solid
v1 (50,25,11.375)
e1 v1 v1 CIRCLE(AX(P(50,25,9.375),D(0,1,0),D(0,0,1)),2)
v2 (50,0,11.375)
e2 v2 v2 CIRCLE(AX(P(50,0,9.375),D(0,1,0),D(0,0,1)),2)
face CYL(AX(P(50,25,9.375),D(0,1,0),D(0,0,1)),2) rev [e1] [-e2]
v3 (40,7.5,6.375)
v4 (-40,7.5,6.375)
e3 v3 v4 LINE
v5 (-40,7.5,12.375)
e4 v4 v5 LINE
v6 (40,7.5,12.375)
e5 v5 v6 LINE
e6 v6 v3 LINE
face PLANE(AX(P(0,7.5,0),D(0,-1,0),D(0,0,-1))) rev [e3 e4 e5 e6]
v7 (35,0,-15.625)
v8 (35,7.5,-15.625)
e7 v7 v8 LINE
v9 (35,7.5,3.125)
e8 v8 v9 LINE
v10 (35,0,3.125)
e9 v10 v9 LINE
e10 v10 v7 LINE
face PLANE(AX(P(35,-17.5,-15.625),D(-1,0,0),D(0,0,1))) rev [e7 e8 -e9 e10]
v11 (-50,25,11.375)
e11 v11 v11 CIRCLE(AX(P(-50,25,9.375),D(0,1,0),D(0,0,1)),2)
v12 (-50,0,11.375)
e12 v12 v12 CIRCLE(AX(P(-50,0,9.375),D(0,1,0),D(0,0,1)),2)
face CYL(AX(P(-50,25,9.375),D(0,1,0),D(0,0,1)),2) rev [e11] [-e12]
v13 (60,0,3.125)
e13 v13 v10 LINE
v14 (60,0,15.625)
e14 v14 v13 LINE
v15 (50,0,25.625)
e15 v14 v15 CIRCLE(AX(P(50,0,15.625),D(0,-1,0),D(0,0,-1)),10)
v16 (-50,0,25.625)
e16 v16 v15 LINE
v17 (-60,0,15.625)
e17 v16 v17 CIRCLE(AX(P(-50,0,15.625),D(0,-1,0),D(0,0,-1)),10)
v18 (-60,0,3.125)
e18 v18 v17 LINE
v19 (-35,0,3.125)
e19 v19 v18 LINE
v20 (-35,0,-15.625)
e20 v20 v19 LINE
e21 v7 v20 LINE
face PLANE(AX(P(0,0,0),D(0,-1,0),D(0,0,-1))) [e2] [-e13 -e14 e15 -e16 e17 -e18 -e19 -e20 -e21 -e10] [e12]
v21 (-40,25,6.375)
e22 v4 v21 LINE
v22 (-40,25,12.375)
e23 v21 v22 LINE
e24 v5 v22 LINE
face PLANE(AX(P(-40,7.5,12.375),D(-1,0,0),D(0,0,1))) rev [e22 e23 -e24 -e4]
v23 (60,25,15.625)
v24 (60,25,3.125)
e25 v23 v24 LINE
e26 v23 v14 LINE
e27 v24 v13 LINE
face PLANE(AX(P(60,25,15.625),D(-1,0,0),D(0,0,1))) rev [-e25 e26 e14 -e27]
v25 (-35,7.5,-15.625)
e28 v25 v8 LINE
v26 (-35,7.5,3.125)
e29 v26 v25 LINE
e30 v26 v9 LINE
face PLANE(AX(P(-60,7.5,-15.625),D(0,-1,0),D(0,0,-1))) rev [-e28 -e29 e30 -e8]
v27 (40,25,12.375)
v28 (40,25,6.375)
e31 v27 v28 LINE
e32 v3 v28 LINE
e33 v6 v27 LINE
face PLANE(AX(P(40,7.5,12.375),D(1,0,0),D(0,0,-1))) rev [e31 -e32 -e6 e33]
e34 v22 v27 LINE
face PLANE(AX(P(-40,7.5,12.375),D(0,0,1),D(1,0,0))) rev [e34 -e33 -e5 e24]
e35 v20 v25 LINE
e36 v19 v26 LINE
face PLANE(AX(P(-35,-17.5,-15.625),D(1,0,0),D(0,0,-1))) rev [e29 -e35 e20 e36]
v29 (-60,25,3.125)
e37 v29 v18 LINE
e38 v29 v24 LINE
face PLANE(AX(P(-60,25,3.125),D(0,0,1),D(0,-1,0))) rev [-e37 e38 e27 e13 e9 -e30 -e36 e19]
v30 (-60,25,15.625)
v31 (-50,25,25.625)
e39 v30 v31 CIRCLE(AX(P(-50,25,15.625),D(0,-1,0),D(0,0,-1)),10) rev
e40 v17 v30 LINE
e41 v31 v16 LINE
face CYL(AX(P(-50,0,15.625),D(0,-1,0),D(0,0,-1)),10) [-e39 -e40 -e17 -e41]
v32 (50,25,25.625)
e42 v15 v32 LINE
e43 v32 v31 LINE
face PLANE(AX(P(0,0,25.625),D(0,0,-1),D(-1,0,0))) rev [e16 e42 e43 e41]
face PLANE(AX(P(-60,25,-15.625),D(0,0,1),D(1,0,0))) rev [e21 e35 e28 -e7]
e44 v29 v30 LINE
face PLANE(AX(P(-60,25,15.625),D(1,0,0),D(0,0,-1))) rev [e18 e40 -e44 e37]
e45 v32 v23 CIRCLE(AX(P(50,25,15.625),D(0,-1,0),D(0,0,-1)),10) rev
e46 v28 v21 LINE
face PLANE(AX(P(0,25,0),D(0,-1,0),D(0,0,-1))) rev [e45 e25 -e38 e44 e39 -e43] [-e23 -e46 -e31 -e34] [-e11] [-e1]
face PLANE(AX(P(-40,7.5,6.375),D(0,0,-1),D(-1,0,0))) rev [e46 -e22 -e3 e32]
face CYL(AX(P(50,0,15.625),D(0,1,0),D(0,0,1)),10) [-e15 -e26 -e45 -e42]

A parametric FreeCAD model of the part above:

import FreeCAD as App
import Part
import Sketcher

V = App.Vector


def edges_at(feature, points):
    """Names of the edges that pass closest to the given points."""
    edges = feature.Shape.Edges
    near = lambda p: min(range(len(edges)), key=lambda i: edges[i].distToShape(Part.Vertex(*p))[0])
    return sorted({f"Edge{near(p) + 1}" for p in points})

doc = App.newDocument("Part")
params = doc.addObject("Spreadsheet::Sheet", "Params")
for row, (alias, value) in enumerate([
    ("sketch1_width", "120 mm"),
    ("sketch1_height", "31.25 mm"),
    ("pad1_length", "25 mm"),
    ("sketch2_width", "17.5 mm"),
    ("sketch2_height", "18.75 mm"),
    ("sketch3_diameter", "4 mm"),
    ("hole_diameter", "4 mm"),
    ("sketch4_width", "120 mm"),
    ("sketch4_height", "25 mm"),
    ("pad2_length", "10 mm"),
    ("sketch5_width", "80 mm"),
    ("sketch5_height", "6 mm"),
    ("pocket2_length", "17.5 mm"),
    ("fillet_radius", "10 mm"),
    ("sketch6_width", "25 mm"),
    ("sketch6_height", "18.75 mm"),
    ("pocket3_length", "25 mm"),
], start=1):
    params.set(f"A{row}", alias)
    params.set(f"B{row}", "=" + value)
    params.setAlias(f"B{row}", alias)

body = doc.addObject("PartDesign::Body", "Body")

sketch1 = body.newObject("Sketcher::SketchObject", "Sketch")
sketch1.AttachmentSupport = (doc.getObject("XZ_Plane"), [""])
sketch1.MapMode = "FlatFace"
sketch1.addGeometry([
    Part.LineSegment(V(-60, -16, 0), V(-60, 16, 0)),
    Part.LineSegment(V(-60, 16, 0), V(60, 16, 0)),
    Part.LineSegment(V(60, 16, 0), V(60, -16, 0)),
    Part.LineSegment(V(60, -16, 0), V(-60, -16, 0)),
], False)
sketch1.addConstraint([
    Sketcher.Constraint("Coincident", 0, 2, 1, 1),
    Sketcher.Constraint("Coincident", 1, 2, 2, 1),
    Sketcher.Constraint("Coincident", 2, 2, 3, 1),
    Sketcher.Constraint("Coincident", 3, 2, 0, 1),
    Sketcher.Constraint("Vertical", 0),
    Sketcher.Constraint("Horizontal", 1),
    Sketcher.Constraint("Vertical", 2),
    Sketcher.Constraint("Horizontal", 3),
    Sketcher.Constraint("Symmetric", 0, 2, 2, 2, -1, 1),
    Sketcher.Constraint("DistanceX", 1, 1, 1, 2, 120.0),
    Sketcher.Constraint("DistanceY", 0, 1, 0, 2, 31.25),
])
sketch1.setExpression("Constraints[9]", "Params.sketch1_width")
sketch1.setExpression("Constraints[10]", "Params.sketch1_height")
pad1 = body.newObject("PartDesign::Pad", "Pad")
pad1.Profile = sketch1
pad1.setExpression("Length", "Params.pad1_length")
pad1.Reversed = True

sketch2 = body.newObject("Sketcher::SketchObject", "Sketch001")
sketch2.AttachmentSupport = (doc.getObject("YZ_Plane"), [""])
sketch2.MapMode = "FlatFace"
sketch2.AttachmentOffset = App.Placement(V(0, 0, 60), App.Rotation())
sketch2.addGeometry([
    Part.LineSegment(V(25, 3, 0), V(8, 3, 0)),
    Part.LineSegment(V(8, 3, 0), V(8, -16, 0)),
    Part.LineSegment(V(8, -16, 0), V(25, -16, 0)),
    Part.LineSegment(V(25, -16, 0), V(25, 3, 0)),
], False)
sketch2.addConstraint([
    Sketcher.Constraint("Coincident", 0, 2, 1, 1),
    Sketcher.Constraint("Coincident", 1, 2, 2, 1),
    Sketcher.Constraint("Coincident", 2, 2, 3, 1),
    Sketcher.Constraint("Coincident", 3, 2, 0, 1),
    Sketcher.Constraint("Horizontal", 0),
    Sketcher.Constraint("Vertical", 1),
    Sketcher.Constraint("Horizontal", 2),
    Sketcher.Constraint("Vertical", 3),
    Sketcher.Constraint("DistanceX", 0, 2, 0, 1, 17.5),
    Sketcher.Constraint("DistanceX", -1, 1, 2, 2, 25.0),
    Sketcher.Constraint("DistanceY", 1, 2, 1, 1, 18.75),
    Sketcher.Constraint("DistanceY", -1, 1, 0, 2, 3.125),
])
sketch2.setExpression("Constraints[8]", "Params.sketch2_width")
sketch2.setExpression("Constraints[10]", "Params.sketch2_height")
pocket1 = body.newObject("PartDesign::Pocket", "Pocket")
pocket1.Profile = sketch2
pocket1.Type = "ThroughAll"

sketch3 = body.newObject("Sketcher::SketchObject", "Sketch002")
sketch3.AttachmentSupport = (doc.getObject("XZ_Plane"), [""])
sketch3.MapMode = "FlatFace"
sketch3.AttachmentOffset = App.Placement(V(0, 0, -25), App.Rotation())
sketch3.addGeometry([
    Part.Circle(V(50, 9.4, 0), V(0, 0, 1), 2),
    Part.Circle(V(-50, 9.4, 0), V(0, 0, 1), 2),
], False)
sketch3.addConstraint([
    Sketcher.Constraint("Equal", 0, 1),
    Sketcher.Constraint("Symmetric", 0, 3, 1, 3, -2),
    Sketcher.Constraint("Diameter", 0, 4.0),
    Sketcher.Constraint("DistanceX", -1, 1, 0, 3, 50.0),
    Sketcher.Constraint("DistanceY", -1, 1, 0, 3, 9.375),
])
sketch3.setExpression("Constraints[2]", "Params.sketch3_diameter")
doc.recompute()
hole = body.newObject("PartDesign::Hole", "Hole")
hole.Profile = sketch3
hole.ThreadType = "None"
hole.setExpression("Diameter", "Params.hole_diameter")
hole.DepthType = "ThroughAll"
hole.Reversed = True

sketch4 = body.newObject("Sketcher::SketchObject", "Sketch003")
sketch4.AttachmentSupport = (doc.getObject("XY_Plane"), [""])
sketch4.MapMode = "FlatFace"
sketch4.AttachmentOffset = App.Placement(V(0, 0, 15.625), App.Rotation())
sketch4.addGeometry([
    Part.LineSegment(V(-60, 25, 0), V(-60, 0, 0)),
    Part.LineSegment(V(-60, 0, 0), V(60, 0, 0)),
    Part.LineSegment(V(60, 0, 0), V(60, 25, 0)),
    Part.LineSegment(V(60, 25, 0), V(-60, 25, 0)),
], False)
sketch4.addConstraint([
    Sketcher.Constraint("Coincident", 0, 2, 1, 1),
    Sketcher.Constraint("Coincident", 1, 2, 2, 1),
    Sketcher.Constraint("Coincident", 2, 2, 3, 1),
    Sketcher.Constraint("Coincident", 3, 2, 0, 1),
    Sketcher.Constraint("Vertical", 0),
    Sketcher.Constraint("Horizontal", 1),
    Sketcher.Constraint("Vertical", 2),
    Sketcher.Constraint("Horizontal", 3),
    Sketcher.Constraint("Symmetric", 0, 2, 1, 2, -1, 1),
    Sketcher.Constraint("DistanceX", 1, 1, 1, 2, 120.0),
    Sketcher.Constraint("DistanceY", 0, 2, 0, 1, 25.0),
])
sketch4.setExpression("Constraints[9]", "Params.sketch4_width")
sketch4.setExpression("Constraints[10]", "Params.sketch4_height")
pad2 = body.newObject("PartDesign::Pad", "Pad001")
pad2.Profile = sketch4
pad2.setExpression("Length", "Params.pad2_length")

sketch5 = body.newObject("Sketcher::SketchObject", "Sketch004")
sketch5.AttachmentSupport = (doc.getObject("XZ_Plane"), [""])
sketch5.MapMode = "FlatFace"
sketch5.AttachmentOffset = App.Placement(V(0, 0, -25), App.Rotation())
sketch5.addGeometry([
    Part.LineSegment(V(-40, 6, 0), V(-40, 12, 0)),
    Part.LineSegment(V(-40, 12, 0), V(40, 12, 0)),
    Part.LineSegment(V(40, 12, 0), V(40, 6, 0)),
    Part.LineSegment(V(40, 6, 0), V(-40, 6, 0)),
], False)
sketch5.addConstraint([
    Sketcher.Constraint("Coincident", 0, 2, 1, 1),
    Sketcher.Constraint("Coincident", 1, 2, 2, 1),
    Sketcher.Constraint("Coincident", 2, 2, 3, 1),
    Sketcher.Constraint("Coincident", 3, 2, 0, 1),
    Sketcher.Constraint("Vertical", 0),
    Sketcher.Constraint("Horizontal", 1),
    Sketcher.Constraint("Vertical", 2),
    Sketcher.Constraint("Horizontal", 3),
    Sketcher.Constraint("DistanceX", 1, 1, 1, 2, 80.0),
    Sketcher.Constraint("DistanceY", 0, 1, 0, 2, 6.0),
    Sketcher.Constraint("DistanceX", 0, 2, -1, 1, 40.0),
    Sketcher.Constraint("DistanceY", -1, 1, 0, 2, 12.375),
])
sketch5.setExpression("Constraints[8]", "Params.sketch5_width")
sketch5.setExpression("Constraints[9]", "Params.sketch5_height")
pocket2 = body.newObject("PartDesign::Pocket", "Pocket001")
pocket2.Profile = sketch5
pocket2.setExpression("Length", "Params.pocket2_length")
pocket2.Reversed = True
doc.recompute()

fillet = body.newObject("PartDesign::Fillet", "Fillet")
fillet.Base = (pocket2, edges_at(pocket2, [(-60, 12.5, 25.625), (60, 12.5, 25.625)]))
fillet.setExpression("Radius", "Params.fillet_radius")

sketch6 = body.newObject("Sketcher::SketchObject", "Sketch005")
sketch6.AttachmentSupport = (doc.getObject("XZ_Plane"), [""])
sketch6.MapMode = "FlatFace"
sketch6.AttachmentOffset = App.Placement(V(0, 0, -7.5), App.Rotation())
sketch6.addGeometry([
    Part.LineSegment(V(-60, -16, 0), V(-60, 3, 0)),
    Part.LineSegment(V(-60, 3, 0), V(-35, 3, 0)),
    Part.LineSegment(V(-35, 3, 0), V(-35, -16, 0)),
    Part.LineSegment(V(-35, -16, 0), V(-60, -16, 0)),
    Part.LineSegment(V(35, -16, 0), V(35, 3, 0)),
    Part.LineSegment(V(35, 3, 0), V(60, 3, 0)),
    Part.LineSegment(V(60, 3, 0), V(60, -16, 0)),
    Part.LineSegment(V(60, -16, 0), V(35, -16, 0)),
], False)
sketch6.addConstraint([
    Sketcher.Constraint("Coincident", 0, 2, 1, 1),
    Sketcher.Constraint("Coincident", 1, 2, 2, 1),
    Sketcher.Constraint("Coincident", 2, 2, 3, 1),
    Sketcher.Constraint("Coincident", 3, 2, 0, 1),
    Sketcher.Constraint("Coincident", 4, 2, 5, 1),
    Sketcher.Constraint("Coincident", 5, 2, 6, 1),
    Sketcher.Constraint("Coincident", 6, 2, 7, 1),
    Sketcher.Constraint("Coincident", 7, 2, 4, 1),
    Sketcher.Constraint("Vertical", 0),
    Sketcher.Constraint("Horizontal", 1),
    Sketcher.Constraint("Vertical", 2),
    Sketcher.Constraint("Horizontal", 3),
    Sketcher.Constraint("Vertical", 4),
    Sketcher.Constraint("Horizontal", 5),
    Sketcher.Constraint("Vertical", 6),
    Sketcher.Constraint("Horizontal", 7),
    Sketcher.Constraint("Symmetric", 1, 2, 4, 2, -2),
    Sketcher.Constraint("Symmetric", 3, 2, 6, 2, -2),
    Sketcher.Constraint("DistanceX", 1, 1, 1, 2, 25.0),
    Sketcher.Constraint("DistanceX", 0, 2, -1, 1, 60.0),
    Sketcher.Constraint("DistanceY", 0, 1, 0, 2, 18.75),
    Sketcher.Constraint("DistanceY", -1, 1, 0, 2, 3.125),
])
sketch6.setExpression("Constraints[18]", "Params.sketch6_width")
sketch6.setExpression("Constraints[20]", "Params.sketch6_height")
pocket3 = body.newObject("PartDesign::Pocket", "Pocket002")
pocket3.Profile = sketch6
pocket3.setExpression("Length", "Params.pocket3_length")
pocket3.Reversed = True

doc.recompute()
